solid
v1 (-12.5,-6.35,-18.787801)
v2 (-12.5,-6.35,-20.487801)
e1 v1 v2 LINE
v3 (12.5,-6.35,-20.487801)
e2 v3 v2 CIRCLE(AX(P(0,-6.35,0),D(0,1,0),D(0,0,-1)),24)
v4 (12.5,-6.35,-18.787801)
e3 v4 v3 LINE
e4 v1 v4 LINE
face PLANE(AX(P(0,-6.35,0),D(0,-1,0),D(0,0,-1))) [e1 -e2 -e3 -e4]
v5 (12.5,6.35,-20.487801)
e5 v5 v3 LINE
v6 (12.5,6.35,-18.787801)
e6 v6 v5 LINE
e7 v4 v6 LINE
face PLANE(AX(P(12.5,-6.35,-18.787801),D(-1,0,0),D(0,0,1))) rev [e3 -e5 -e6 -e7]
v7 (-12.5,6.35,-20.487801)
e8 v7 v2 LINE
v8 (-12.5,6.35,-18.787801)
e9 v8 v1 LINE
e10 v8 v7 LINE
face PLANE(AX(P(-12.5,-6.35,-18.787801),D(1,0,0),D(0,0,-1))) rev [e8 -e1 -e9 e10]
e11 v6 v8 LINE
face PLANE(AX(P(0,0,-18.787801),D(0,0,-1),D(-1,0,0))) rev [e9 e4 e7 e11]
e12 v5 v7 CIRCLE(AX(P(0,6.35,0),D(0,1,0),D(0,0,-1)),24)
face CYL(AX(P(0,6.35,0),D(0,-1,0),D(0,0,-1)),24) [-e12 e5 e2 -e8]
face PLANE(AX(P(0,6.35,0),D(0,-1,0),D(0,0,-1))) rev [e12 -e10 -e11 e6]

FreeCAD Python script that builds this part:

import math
import FreeCAD as App
import Part
import Sketcher


def add_polygon(sketch, points):
    """Adds a closed chain of lines whose ends are joined by coincident constraints."""
    first, n = sketch.GeometryCount, len(points)
    for a, b in zip(points, points[1:] + points[:1]):
        sketch.addGeometry(Part.LineSegment(App.Vector(*a, 0), App.Vector(*b, 0)), False)
    for i in range(n):
        sketch.addConstraint(Sketcher.Constraint("Coincident", first + i, 2, first + (i + 1) % n, 1))

doc = App.newDocument("Part")
params = doc.addObject("Spreadsheet::Sheet", "Params")
for row, (alias, value) in enumerate([
    ("sketch1_radius", "24 mm"),
    ("sketch1_width", "25 mm"),
    ("pad1_length", "12.7 mm"),
    ("sketch2_width", "25 mm"),
    ("sketch2_height", "12.7 mm"),
    ("pad2_length", "1.7 mm"),
], start=1):
    params.set(f"A{row}", alias)
    params.set(f"B{row}", "=" + value)
    params.setAlias(f"B{row}", alias)

body = doc.addObject("PartDesign::Body", "Body")

sketch1 = body.newObject("Sketcher::SketchObject", "Sketch")
sketch1.AttachmentSupport = (doc.getObject("XZ_Plane"), [""])
sketch1.MapMode = "FlatFace"
sketch1.addGeometry(Part.LineSegment(App.Vector(-12, -20, 0), App.Vector(12, -20, 0)), False)
sketch1.addGeometry(Part.ArcOfCircle(Part.Circle(App.Vector(0, 0, 0), App.Vector(0, 0, 1), 24), math.radians(-121), math.radians(-59)), False)
sketch1.addConstraint(Sketcher.Constraint("Coincident", 0, 1, 1, 1))
sketch1.addConstraint(Sketcher.Constraint("Coincident", 1, 2, 0, 2))
sketch1.addConstraint(Sketcher.Constraint("Horizontal", 0))
sketch1.addConstraint(Sketcher.Constraint("Coincident", 1, 3, -1, 1))
sketch1.addConstraint(Sketcher.Constraint("Radius", 1, 24.0))
sketch1.addConstraint(Sketcher.Constraint("DistanceX", 0, 1, 0, 2, 25.0))
sketch1.setExpression("Constraints[4]", "Params.sketch1_radius")
sketch1.setExpression("Constraints[5]", "Params.sketch1_width")
pad1 = body.newObject("PartDesign::Pad", "Pad")
pad1.Profile = sketch1
pad1.setExpression("Length", "Params.pad1_length")
pad1.Midplane = True

sketch2 = body.newObject("Sketcher::SketchObject", "Sketch001")
sketch2.AttachmentSupport = (doc.getObject("XY_Plane"), [""])
sketch2.MapMode = "FlatFace"
sketch2.AttachmentOffset = App.Placement(App.Vector(0, 0, -20.487801), App.Rotation())
add_polygon(sketch2, [(-12, 6), (-12, -6), (12, -6), (12, 6)])
sketch2.addConstraint(Sketcher.Constraint("Vertical", 0))
sketch2.addConstraint(Sketcher.Constraint("Horizontal", 1))
sketch2.addConstraint(Sketcher.Constraint("Vertical", 2))
sketch2.addConstraint(Sketcher.Constraint("Horizontal", 3))
sketch2.addConstraint(Sketcher.Constraint("Symmetric", 0, 2, 2, 2, -1, 1))
sketch2.addConstraint(Sketcher.Constraint("DistanceX", 1, 1, 1, 2, 25.0))
sketch2.addConstraint(Sketcher.Constraint("DistanceY", 0, 2, 0, 1, 12.7))
sketch2.setExpression("Constraints[9]", "Params.sketch2_width")
sketch2.setExpression("Constraints[10]", "Params.sketch2_height")
pad2 = body.newObject("PartDesign::Pad", "Pad001")
pad2.Profile = sketch2
pad2.setExpression("Length", "Params.pad2_length")

doc.recompute()
